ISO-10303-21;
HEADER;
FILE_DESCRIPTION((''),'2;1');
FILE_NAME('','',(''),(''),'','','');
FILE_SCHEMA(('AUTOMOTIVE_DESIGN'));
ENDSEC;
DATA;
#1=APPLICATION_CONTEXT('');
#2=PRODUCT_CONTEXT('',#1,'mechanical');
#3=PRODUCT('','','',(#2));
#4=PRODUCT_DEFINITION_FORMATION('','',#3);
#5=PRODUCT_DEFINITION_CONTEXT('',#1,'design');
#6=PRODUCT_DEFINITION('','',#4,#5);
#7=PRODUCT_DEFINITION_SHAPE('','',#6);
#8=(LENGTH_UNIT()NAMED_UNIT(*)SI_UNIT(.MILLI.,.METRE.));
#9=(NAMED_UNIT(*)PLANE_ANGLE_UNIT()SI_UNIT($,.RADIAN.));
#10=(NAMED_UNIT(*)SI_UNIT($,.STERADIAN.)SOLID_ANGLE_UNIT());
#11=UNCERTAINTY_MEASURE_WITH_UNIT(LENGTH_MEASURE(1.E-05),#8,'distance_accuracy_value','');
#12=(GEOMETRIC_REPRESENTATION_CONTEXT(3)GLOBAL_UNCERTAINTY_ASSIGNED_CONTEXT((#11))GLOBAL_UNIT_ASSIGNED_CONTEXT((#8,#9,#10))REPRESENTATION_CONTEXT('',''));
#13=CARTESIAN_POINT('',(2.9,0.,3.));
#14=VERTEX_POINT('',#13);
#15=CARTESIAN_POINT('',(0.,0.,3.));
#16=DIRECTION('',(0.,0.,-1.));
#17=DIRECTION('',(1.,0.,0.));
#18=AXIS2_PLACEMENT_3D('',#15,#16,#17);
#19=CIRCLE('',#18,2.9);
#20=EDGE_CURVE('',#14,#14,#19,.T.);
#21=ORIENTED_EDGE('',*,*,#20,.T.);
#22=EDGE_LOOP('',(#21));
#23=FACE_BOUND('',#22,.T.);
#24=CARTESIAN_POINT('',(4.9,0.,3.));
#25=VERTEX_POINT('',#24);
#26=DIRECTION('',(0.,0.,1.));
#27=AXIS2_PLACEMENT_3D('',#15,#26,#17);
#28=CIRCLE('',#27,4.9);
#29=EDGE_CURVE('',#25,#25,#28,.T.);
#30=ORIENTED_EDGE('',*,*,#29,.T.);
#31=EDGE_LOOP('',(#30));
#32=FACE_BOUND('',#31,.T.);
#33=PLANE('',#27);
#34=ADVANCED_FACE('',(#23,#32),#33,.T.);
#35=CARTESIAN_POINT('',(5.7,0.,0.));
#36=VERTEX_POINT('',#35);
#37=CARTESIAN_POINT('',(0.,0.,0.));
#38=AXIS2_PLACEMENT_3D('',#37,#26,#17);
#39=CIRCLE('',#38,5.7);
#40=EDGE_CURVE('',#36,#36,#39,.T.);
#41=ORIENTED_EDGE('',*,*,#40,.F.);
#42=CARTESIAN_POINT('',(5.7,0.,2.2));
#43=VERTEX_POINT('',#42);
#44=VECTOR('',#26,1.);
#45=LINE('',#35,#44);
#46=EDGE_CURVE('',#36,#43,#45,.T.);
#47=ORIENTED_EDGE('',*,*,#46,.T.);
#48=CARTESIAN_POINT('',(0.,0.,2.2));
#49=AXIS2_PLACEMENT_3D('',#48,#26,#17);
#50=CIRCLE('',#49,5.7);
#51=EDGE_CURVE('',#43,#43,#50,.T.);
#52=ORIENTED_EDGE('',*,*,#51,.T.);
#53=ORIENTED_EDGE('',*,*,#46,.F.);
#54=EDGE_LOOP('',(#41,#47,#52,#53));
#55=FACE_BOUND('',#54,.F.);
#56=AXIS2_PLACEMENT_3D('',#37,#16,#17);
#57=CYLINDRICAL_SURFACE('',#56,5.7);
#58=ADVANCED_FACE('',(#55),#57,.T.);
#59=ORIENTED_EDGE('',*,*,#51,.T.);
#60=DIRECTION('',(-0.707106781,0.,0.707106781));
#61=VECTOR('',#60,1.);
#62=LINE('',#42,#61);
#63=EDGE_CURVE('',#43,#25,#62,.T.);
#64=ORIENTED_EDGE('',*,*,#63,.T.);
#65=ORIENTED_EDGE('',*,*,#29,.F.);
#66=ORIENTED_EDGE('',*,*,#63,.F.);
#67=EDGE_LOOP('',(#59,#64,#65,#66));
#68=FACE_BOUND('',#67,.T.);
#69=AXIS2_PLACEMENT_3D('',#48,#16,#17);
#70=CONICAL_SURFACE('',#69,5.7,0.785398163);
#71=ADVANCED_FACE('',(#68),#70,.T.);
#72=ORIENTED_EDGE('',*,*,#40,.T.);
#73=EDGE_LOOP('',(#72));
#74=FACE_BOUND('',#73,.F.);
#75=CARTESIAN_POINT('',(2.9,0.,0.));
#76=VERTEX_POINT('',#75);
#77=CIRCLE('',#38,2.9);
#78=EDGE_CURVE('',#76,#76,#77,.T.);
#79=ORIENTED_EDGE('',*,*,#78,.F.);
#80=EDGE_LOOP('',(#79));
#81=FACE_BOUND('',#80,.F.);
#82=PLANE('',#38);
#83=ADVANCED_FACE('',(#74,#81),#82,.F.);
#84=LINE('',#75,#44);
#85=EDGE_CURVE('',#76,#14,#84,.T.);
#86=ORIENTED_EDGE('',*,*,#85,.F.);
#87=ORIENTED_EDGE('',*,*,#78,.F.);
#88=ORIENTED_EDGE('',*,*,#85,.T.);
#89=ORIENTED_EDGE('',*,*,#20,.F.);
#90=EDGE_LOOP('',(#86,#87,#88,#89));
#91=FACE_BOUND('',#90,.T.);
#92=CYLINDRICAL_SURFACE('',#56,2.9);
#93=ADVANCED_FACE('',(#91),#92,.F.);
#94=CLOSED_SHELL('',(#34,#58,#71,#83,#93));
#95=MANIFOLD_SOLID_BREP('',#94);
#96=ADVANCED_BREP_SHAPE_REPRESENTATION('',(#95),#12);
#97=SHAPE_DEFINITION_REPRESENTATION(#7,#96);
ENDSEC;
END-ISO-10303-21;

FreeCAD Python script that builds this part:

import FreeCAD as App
import Part
import Sketcher
from FreeCAD import Vector
Q = App.Units.Quantity


def edges_at(feature, points):
    """Names of the edges that pass closest to the given points."""
    edges = feature.Shape.Edges
    near = lambda p: min(range(len(edges)), key=lambda i: edges[i].distToShape(Part.Vertex(*p))[0])
    return sorted({f"Edge{near(p) + 1}" for p in points})

doc = App.newDocument("Part")
body = doc.addObject("PartDesign::Body", "Body")

# Sketch on XY plane
sketch1 = body.newObject("Sketcher::SketchObject", "Sketch")
sketch1.AttachmentSupport = (doc.getObject("XY_Plane"), [""])
sketch1.MapMode = "FlatFace"
sketch1.addGeometry(Part.Circle(Vector(0, 0, 0), Vector(0, 0, 1), 6), False)
sketch1.addConstraint([
    Sketcher.Constraint("Coincident", 0, 3, -1, 1),
    Sketcher.Constraint("Diameter", 0, Q("11.4 mm")),
])
pad1 = body.newObject("PartDesign::Pad", "Pad")
pad1.Profile = sketch1
pad1.Length = 3
doc.recompute()

chamfer = body.newObject("PartDesign::Chamfer", "Chamfer")
chamfer.Base = (pad1, edges_at(pad1, [(-5.7, 0, 3)]))
chamfer.Size = 0.8

# Sketch on XY plane
sketch2 = body.newObject("Sketcher::SketchObject", "Sketch001")
sketch2.AttachmentSupport = (doc.getObject("XY_Plane"), [""])
sketch2.MapMode = "FlatFace"
sketch2.addGeometry(Part.Circle(Vector(0, 0, 0), Vector(0, 0, 1), 2.9), False)
sketch2.addConstraint([
    Sketcher.Constraint("Coincident", 0, 3, -1, 1),
    Sketcher.Constraint("Diameter", 0, Q("5.8 mm")),
])
pocket1 = body.newObject("PartDesign::Pocket", "Pocket")
pocket1.Profile = sketch2
pocket1.Length = 10
pocket1.Reversed = True

doc.recompute()
